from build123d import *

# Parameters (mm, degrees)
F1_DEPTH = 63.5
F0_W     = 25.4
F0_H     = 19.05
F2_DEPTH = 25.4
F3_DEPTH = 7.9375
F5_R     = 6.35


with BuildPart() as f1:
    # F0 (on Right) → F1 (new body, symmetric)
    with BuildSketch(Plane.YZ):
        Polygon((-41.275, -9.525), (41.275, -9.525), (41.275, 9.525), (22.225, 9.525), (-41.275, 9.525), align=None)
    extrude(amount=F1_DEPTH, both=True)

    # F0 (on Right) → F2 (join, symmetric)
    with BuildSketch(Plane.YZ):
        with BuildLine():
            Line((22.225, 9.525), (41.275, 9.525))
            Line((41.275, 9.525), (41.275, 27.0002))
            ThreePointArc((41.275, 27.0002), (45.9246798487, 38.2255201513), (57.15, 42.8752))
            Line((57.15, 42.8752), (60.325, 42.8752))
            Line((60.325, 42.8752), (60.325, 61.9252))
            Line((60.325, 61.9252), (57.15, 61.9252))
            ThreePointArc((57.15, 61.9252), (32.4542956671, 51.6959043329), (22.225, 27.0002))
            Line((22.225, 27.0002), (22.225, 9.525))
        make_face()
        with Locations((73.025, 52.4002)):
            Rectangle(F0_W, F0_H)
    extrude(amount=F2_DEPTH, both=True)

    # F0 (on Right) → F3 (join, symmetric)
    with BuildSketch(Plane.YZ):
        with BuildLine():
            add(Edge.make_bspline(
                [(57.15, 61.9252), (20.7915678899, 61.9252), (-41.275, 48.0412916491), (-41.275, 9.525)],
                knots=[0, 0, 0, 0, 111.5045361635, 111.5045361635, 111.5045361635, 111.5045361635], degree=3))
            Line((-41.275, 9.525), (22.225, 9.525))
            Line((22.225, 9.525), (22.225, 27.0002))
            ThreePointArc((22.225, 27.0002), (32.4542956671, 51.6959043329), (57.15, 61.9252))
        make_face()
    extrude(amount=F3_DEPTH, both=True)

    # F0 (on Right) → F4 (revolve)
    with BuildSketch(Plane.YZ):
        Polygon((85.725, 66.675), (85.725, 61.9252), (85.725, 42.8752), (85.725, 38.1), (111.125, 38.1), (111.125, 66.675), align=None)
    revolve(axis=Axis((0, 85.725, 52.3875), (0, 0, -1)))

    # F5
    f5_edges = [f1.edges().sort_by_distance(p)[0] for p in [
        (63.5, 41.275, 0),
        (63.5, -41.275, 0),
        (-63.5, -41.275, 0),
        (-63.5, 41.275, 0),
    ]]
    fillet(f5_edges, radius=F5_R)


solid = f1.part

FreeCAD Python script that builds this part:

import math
import FreeCAD as App
import Part
import Sketcher

V = App.Vector
Q = App.Units.Quantity


def edges_at(feature, points):
    """Names of the edges that pass closest to the given points."""
    edges = feature.Shape.Edges
    near = lambda p: min(range(len(edges)), key=lambda i: edges[i].distToShape(Part.Vertex(*p))[0])
    return sorted({f"Edge{near(p) + 1}" for p in points})


def add_polygon(sketch, points):
    """Adds a closed chain of lines whose ends are joined by coincident constraints."""
    first, n = sketch.GeometryCount, len(points)
    for a, b in zip(points, points[1:] + points[:1]):
        sketch.addGeometry(Part.LineSegment(App.Vector(*a, 0), App.Vector(*b, 0)), False)
    for i in range(n):
        sketch.addConstraint(Sketcher.Constraint("Coincident", first + i, 2, first + (i + 1) % n, 1))

doc = App.newDocument("Part")
body = doc.addObject("PartDesign::Body", "Body")

# Sketch on YZ plane
sketch1 = body.newObject("Sketcher::SketchObject", "Sketch")
sketch1.AttachmentSupport = (doc.getObject("YZ_Plane"), [""])
sketch1.MapMode = "FlatFace"
add_polygon(sketch1, [(-41, -10), (41, -10), (41, 10), (-41, 10)])  # lines 0-3
sketch1.addConstraint([
    Sketcher.Constraint("Horizontal", 0),
    Sketcher.Constraint("Vertical", 1),
    Sketcher.Constraint("Horizontal", 2),
    Sketcher.Constraint("Vertical", 3),
    Sketcher.Constraint("Symmetric", 0, 2, 2, 2, -1, 1),
    Sketcher.Constraint("DistanceX", 0, 1, 0, 2, Q("3.25 in")),
    Sketcher.Constraint("DistanceY", 1, 1, 1, 2, Q("0.75 in")),
])
pad1 = body.newObject("PartDesign::Pad", "Pad")
pad1.Profile = sketch1
pad1.Length = Q("5 in")
pad1.Midplane = True

# Sketch on YZ plane
sketch2 = body.newObject("Sketcher::SketchObject", "Sketch001")
sketch2.AttachmentSupport = (doc.getObject("YZ_Plane"), [""])
sketch2.MapMode = "FlatFace"
sketch2.addGeometry([
    Part.LineSegment(V(22, 10, 0), V(41, 10, 0)),  # 0
    Part.LineSegment(V(41, 10, 0), V(41, 27, 0)),  # 1
    Part.ArcOfCircle(Part.Circle(V(57, 27, 0), V(0, 0, 1), 16), math.radians(90), math.radians(180)),  # 2
    Part.LineSegment(V(57, 43, 0), V(86, 43, 0)),  # 3
    Part.LineSegment(V(86, 43, 0), V(86, 62, 0)),  # 4
    Part.LineSegment(V(86, 62, 0), V(57, 62, 0)),  # 5
    Part.ArcOfCircle(Part.Circle(V(57, 27, 0), V(0, 0, 1), 35), math.radians(90), math.radians(180)),  # 6
    Part.LineSegment(V(22, 27, 0), V(22, 10, 0)),  # 7
], False)
sketch2.addConstraint([
    Sketcher.Constraint("Coincident", 0, 2, 1, 1),
    Sketcher.Constraint("Tangent", 1, 2, 2, 2),
    Sketcher.Constraint("Tangent", 2, 1, 3, 1),
    Sketcher.Constraint("Coincident", 3, 2, 4, 1),
    Sketcher.Constraint("Coincident", 4, 2, 5, 1),
    Sketcher.Constraint("Tangent", 5, 2, 6, 1),
    Sketcher.Constraint("Tangent", 6, 2, 7, 1),
    Sketcher.Constraint("Coincident", 7, 2, 0, 1),
    Sketcher.Constraint("Horizontal", 0),
    Sketcher.Constraint("Vertical", 1),
    Sketcher.Constraint("Horizontal", 3),
    Sketcher.Constraint("Vertical", 4),
    Sketcher.Constraint("Horizontal", 5),
    Sketcher.Constraint("Vertical", 7),
    Sketcher.Constraint("Coincident", 6, 3, 2, 3),
    Sketcher.Constraint("Radius", 2, Q("0.625 in")),
    Sketcher.Constraint("Radius", 6, Q("1.375 in")),
    Sketcher.Constraint("DistanceX", 3, 1, 3, 2, Q("1.125 in")),
    Sketcher.Constraint("DistanceY", 1, 1, 1, 2, Q("0.688 in")),
    Sketcher.Constraint("DistanceX", -1, 1, 2, 3, Q("2.25 in")),
    Sketcher.Constraint("DistanceY", -1, 1, 2, 3, Q("1.063 in")),
])
pad2 = body.newObject("PartDesign::Pad", "Pad001")
pad2.Profile = sketch2
pad2.Length = Q("2 in")
pad2.Midplane = True

# Sketch on YZ plane
sketch3 = body.newObject("Sketcher::SketchObject", "Sketch002")
sketch3.AttachmentSupport = (doc.getObject("YZ_Plane"), [""])
sketch3.MapMode = "FlatFace"
sketch3.addGeometry([
    Part.BSplineCurve([V(57.15, 61.9252, 0), V(20.791568, 61.9252, 0), V(-41.275, 48.041292, 0), V(-41.275, 9.525, 0)], [4, 4], [0, 111.504536164], False, 3, [1, 1, 1, 1], False),
    Part.LineSegment(V(-41.275, 9.525, 0), V(22.225, 9.525, 0)),
    Part.LineSegment(V(22.225, 9.525, 0), V(22.225, 27.0002, 0)),
    Part.ArcOfCircle(Part.Circle(V(57.15, 27.0002, 0), V(0, 0, 1), 34.925), math.radians(90), math.radians(180)),
], False)
sketch3.addConstraint([
    Sketcher.Constraint("Block", 0),
    Sketcher.Constraint("Coincident", 0, 2, 1, 1),
    Sketcher.Constraint("Coincident", 1, 2, 2, 1),
    Sketcher.Constraint("Tangent", 2, 2, 3, 2),
    Sketcher.Constraint("Coincident", 3, 1, 0, 1),
    Sketcher.Constraint("Horizontal", 1),
    Sketcher.Constraint("Vertical", 2),
    Sketcher.Constraint("DistanceX", 1, 1, 1, 2, Q("2.5 in")),
    Sketcher.Constraint("Radius", 3, Q("1.375 in")),
])
pad3 = body.newObject("PartDesign::Pad", "Pad002")
pad3.Profile = sketch3
pad3.Length = Q("0.625 in")
pad3.Midplane = True

# Sketch on YZ plane
sketch4 = body.newObject("Sketcher::SketchObject", "Sketch003")
sketch4.AttachmentSupport = (doc.getObject("YZ_Plane"), [""])
sketch4.MapMode = "FlatFace"
add_polygon(sketch4, [(86, 67), (86, 38), (111, 38), (111, 67)])  # lines 0-3
sketch4.addGeometry(Part.LineSegment(V(86, 67, 0), V(86, 38, 0)), True)  # axis
sketch4.addConstraint([
    Sketcher.Constraint("Vertical", 0),
    Sketcher.Constraint("Horizontal", 1),
    Sketcher.Constraint("Vertical", 2),
    Sketcher.Constraint("Horizontal", 3),
    Sketcher.Constraint("Vertical", 4),
    Sketcher.Constraint("Coincident", 4, 1, 3, 2),
    Sketcher.Constraint("Horizontal", 1, 2, 4, 2),
    Sketcher.Constraint("DistanceX", 1, 1, 1, 2, Q("1 in")),
    Sketcher.Constraint("DistanceY", -1, 1, 0, 2, Q("1.5 in")),
    Sketcher.Constraint("DistanceY", 0, 2, 0, 1, Q("1.125 in")),
    Sketcher.Constraint("DistanceX", -1, 1, 0, 2, Q("3.375 in")),
])
revolution = body.newObject("PartDesign::Revolution", "Revolution")
revolution.Profile = sketch4
revolution.ReferenceAxis = (sketch4, ["Axis0"])
revolution.Angle = 360
doc.recompute()

fillet = body.newObject("PartDesign::Fillet", "Fillet")
fillet.Base = (revolution, edges_at(revolution, [
    (63.5, 41.275, 0),
    (63.5, -41.275, 0),
    (-63.5, -41.275, 0),
    (-63.5, 41.275, 0),
]))
fillet.Radius = Q("0.25 in")

doc.recompute()
